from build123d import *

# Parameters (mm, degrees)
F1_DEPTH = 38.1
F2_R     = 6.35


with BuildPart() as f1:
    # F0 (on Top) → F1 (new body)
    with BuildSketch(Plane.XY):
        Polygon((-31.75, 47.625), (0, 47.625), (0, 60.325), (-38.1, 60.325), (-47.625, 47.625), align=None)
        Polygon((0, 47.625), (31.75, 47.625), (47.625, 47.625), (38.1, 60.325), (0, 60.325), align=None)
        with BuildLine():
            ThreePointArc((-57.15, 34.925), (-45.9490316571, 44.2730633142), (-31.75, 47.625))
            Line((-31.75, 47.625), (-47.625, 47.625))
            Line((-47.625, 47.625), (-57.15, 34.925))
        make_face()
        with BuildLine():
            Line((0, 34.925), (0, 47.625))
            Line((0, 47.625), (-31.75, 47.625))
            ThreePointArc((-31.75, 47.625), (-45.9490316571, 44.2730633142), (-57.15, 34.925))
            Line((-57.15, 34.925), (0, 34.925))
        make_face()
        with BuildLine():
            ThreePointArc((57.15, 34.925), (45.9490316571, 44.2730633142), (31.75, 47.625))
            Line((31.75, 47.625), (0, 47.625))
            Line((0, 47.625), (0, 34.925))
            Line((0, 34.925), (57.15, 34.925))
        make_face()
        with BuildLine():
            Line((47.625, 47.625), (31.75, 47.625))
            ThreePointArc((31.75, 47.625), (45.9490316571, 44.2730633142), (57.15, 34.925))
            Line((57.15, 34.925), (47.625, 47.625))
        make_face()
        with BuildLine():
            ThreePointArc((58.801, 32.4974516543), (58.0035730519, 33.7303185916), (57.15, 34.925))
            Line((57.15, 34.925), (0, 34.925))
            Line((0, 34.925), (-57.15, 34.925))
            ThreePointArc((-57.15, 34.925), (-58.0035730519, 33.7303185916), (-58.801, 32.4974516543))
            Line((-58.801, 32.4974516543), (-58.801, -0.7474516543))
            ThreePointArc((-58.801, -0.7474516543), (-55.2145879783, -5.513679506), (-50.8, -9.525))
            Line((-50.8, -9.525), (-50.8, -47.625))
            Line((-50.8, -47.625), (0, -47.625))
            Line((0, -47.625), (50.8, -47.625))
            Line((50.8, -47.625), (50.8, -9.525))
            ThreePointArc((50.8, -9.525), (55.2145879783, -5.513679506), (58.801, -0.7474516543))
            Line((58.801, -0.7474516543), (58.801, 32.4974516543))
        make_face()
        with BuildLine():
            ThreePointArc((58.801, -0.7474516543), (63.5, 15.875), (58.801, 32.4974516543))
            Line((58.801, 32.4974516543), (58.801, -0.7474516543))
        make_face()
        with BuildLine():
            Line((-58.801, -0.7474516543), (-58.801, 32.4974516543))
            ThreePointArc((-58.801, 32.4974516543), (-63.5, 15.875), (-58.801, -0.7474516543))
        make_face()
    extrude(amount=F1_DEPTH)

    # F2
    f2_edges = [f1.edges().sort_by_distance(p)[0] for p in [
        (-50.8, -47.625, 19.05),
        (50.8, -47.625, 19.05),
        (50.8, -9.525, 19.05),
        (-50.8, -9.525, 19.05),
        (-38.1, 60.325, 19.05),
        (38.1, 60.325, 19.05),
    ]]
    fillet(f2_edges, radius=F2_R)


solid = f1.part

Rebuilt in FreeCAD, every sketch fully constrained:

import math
import FreeCAD as App
import Part
import Sketcher

V = App.Vector
Q = App.Units.Quantity


def edges_at(feature, points):
    """Names of the edges that pass closest to the given points."""
    edges = feature.Shape.Edges
    near = lambda p: min(range(len(edges)), key=lambda i: edges[i].distToShape(Part.Vertex(*p))[0])
    return sorted({f"Edge{near(p) + 1}" for p in points})

doc = App.newDocument("Part")
params = doc.addObject("Spreadsheet::Sheet", "Params")
for row, (alias, value) in enumerate([
    ("sketch1_width", "4 in"),
    ("sketch1_width2", "3 in"),
    ("sketch1_radius", "1.25 in"),
    ("sketch1_height", "1.5 in"),
    ("sketch1_height2", "1 in"),
    ("pad1_length", "1.5 in"),
    ("fillet_radius", "0.25 in"),
], start=1):
    params.set(f"A{row}", alias)
    params.set(f"B{row}", "=" + value)
    params.setAlias(f"B{row}", alias)

body = doc.addObject("PartDesign::Body", "Body")

# Sketch on XY plane
sketch1 = body.newObject("Sketcher::SketchObject", "Sketch")
sketch1.AttachmentSupport = (doc.getObject("XY_Plane"), [""])
sketch1.MapMode = "FlatFace"
sketch1.addGeometry([
    Part.LineSegment(V(-38.1, 60.3, 0), V(-57.1, 34.9, 0)),  # 0
    Part.ArcOfCircle(Part.Circle(V(-31.7, 15.9, 0), V(0, 0, 1), 31.8), math.radians(143.13), math.radians(148.43)),  # 1
    Part.ArcOfCircle(Part.Circle(V(-31.8, 15.9, 0), V(0, 0, 1), 31.8), math.radians(148), math.radians(212)),  # 2
    Part.ArcOfCircle(Part.Circle(V(-31.8, 15.9, 0), V(0, 0, 1), 31.7), math.radians(-148), math.radians(-127)),  # 3
    Part.LineSegment(V(-50.8, -9.5, 0), V(-50.8, -47.6, 0)),  # 4
    Part.LineSegment(V(-50.8, -47.6, 0), V(50.8, -47.6, 0)),  # 5
    Part.LineSegment(V(50.8, -47.6, 0), V(50.8, -9.5, 0)),  # 6
    Part.ArcOfCircle(Part.Circle(V(31.8, 15.9, 0), V(0, 0, 1), 31.7), math.radians(-53), math.radians(-32)),  # 7
    Part.ArcOfCircle(Part.Circle(V(31.8, 15.9, 0), V(0, 0, 1), 31.8), math.radians(-32), math.radians(32)),  # 8
    Part.ArcOfCircle(Part.Circle(V(31.7, 15.9, 0), V(0, 0, 1), 31.8), math.radians(31.57), math.radians(36.87)),  # 9
    Part.LineSegment(V(57.1, 34.9, 0), V(38.1, 60.3, 0)),  # 10
    Part.LineSegment(V(38.1, 60.3, 0), V(-38.1, 60.3, 0)),  # 11
], False)
sketch1.addConstraint([
    Sketcher.Constraint("Tangent", 0, 2, 1, 1),
    Sketcher.Constraint("Tangent", 1, 2, 2, 1),
    Sketcher.Constraint("Tangent", 2, 2, 3, 1),
    Sketcher.Constraint("Coincident", 3, 2, 4, 1),
    Sketcher.Constraint("Coincident", 4, 2, 5, 1),
    Sketcher.Constraint("Coincident", 5, 2, 6, 1),
    Sketcher.Constraint("Coincident", 6, 2, 7, 1),
    Sketcher.Constraint("Tangent", 7, 2, 8, 1),
    Sketcher.Constraint("Tangent", 8, 2, 9, 1),
    Sketcher.Constraint("Tangent", 9, 2, 10, 1),
    Sketcher.Constraint("Coincident", 10, 2, 11, 1),
    Sketcher.Constraint("Coincident", 11, 2, 0, 1),
    Sketcher.Constraint("Vertical", 4),
    Sketcher.Constraint("Horizontal", 5),
    Sketcher.Constraint("Vertical", 6),
    Sketcher.Constraint("Horizontal", 11),
    Sketcher.Constraint("Coincident", 3, 3, 1, 3),
    Sketcher.Constraint("Coincident", 9, 3, 7, 3),
    Sketcher.Constraint("Equal", 3, 7),
    Sketcher.Constraint("Symmetric", 1, 3, 7, 3, -2),
    Sketcher.Constraint("Horizontal", 3, 2, 6, 2),
    Sketcher.Constraint("Horizontal", 2, 2, 7, 2),
    Sketcher.Constraint("Horizontal", 1, 2, 8, 2),
    Sketcher.Constraint("Horizontal", 0, 2, 9, 2),
    Sketcher.Constraint("Vertical", 1, 2, 2, 2),
    Sketcher.Constraint("DistanceX", 5, 1, 5, 2, Q("4 in")),
    Sketcher.Constraint("DistanceX", 11, 2, 11, 1, Q("3 in")),
    Sketcher.Constraint("Radius", 1, Q("1.25 in")),
    Sketcher.Constraint("DistanceY", 4, 2, 4, 1, Q("1.5 in")),
    Sketcher.Constraint("DistanceX", 0, 2, 3, 3, Q("1 in")),
    Sketcher.Constraint("DistanceY", 3, 2, 3, 3, Q("1 in")),
    Sketcher.Constraint("DistanceY", -1, 1, 1, 3, Q("0.625 in")),
    Sketcher.Constraint("DistanceX", 1, 2, -1, 1, Q("2.315 in")),
])
sketch1.setExpression("Constraints[25]", "Params.sketch1_width")
sketch1.setExpression("Constraints[26]", "Params.sketch1_width2")
sketch1.setExpression("Constraints[27]", "Params.sketch1_radius")
sketch1.setExpression("Constraints[28]", "Params.sketch1_height")
sketch1.setExpression("Constraints[30]", "Params.sketch1_height2")
pad1 = body.newObject("PartDesign::Pad", "Pad")
pad1.Profile = sketch1
pad1.setExpression("Length", "Params.pad1_length")
doc.recompute()

fillet = body.newObject("PartDesign::Fillet", "Fillet")
fillet.Base = (pad1, edges_at(pad1, [
    (-50.8, -47.625, 19.05),
    (50.8, -47.625, 19.05),
    (50.8, -9.525, 19.05),
    (-50.8, -9.525, 19.05),
    (-38.1, 60.325, 19.05),
    (38.1, 60.325, 19.05),
]))
fillet.setExpression("Radius", "Params.fillet_radius")

doc.recompute()
